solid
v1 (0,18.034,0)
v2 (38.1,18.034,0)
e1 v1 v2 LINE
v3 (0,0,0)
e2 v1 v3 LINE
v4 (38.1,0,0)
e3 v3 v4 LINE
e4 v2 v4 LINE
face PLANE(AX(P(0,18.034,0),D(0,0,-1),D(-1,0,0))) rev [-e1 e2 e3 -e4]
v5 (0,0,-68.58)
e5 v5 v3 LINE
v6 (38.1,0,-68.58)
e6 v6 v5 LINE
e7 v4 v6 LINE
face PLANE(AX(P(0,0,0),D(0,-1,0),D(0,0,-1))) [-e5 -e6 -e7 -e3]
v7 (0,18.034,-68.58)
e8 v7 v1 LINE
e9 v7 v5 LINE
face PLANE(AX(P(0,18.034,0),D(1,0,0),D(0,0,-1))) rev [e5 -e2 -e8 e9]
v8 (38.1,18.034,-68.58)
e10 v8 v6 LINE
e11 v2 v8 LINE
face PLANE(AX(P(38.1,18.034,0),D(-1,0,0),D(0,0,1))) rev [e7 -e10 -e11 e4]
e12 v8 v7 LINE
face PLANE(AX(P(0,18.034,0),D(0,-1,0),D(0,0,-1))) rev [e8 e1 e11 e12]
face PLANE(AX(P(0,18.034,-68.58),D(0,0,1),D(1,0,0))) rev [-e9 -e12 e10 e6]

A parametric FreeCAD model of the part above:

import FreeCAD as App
import Part
import Sketcher
from FreeCAD import Vector
Q = App.Units.Quantity


def add_polygon(sketch, points):
    """Adds a closed chain of lines whose ends are joined by coincident constraints."""
    first, n = sketch.GeometryCount, len(points)
    for a, b in zip(points, points[1:] + points[:1]):
        sketch.addGeometry(Part.LineSegment(App.Vector(*a, 0), App.Vector(*b, 0)), False)
    for i in range(n):
        sketch.addConstraint(Sketcher.Constraint("Coincident", first + i, 2, first + (i + 1) % n, 1))

doc = App.newDocument("Part")
body = doc.addObject("PartDesign::Body", "Body")

sketch1 = body.newObject("Sketcher::SketchObject", "Sketch")
sketch1.AttachmentSupport = (doc.getObject("XZ_Plane"), [""])
sketch1.MapMode = "FlatFace"
add_polygon(sketch1, [(0, -69), (0, 0), (38, 0), (38, -69)])
sketch1.addConstraint([
    Sketcher.Constraint("Vertical", 0),
    Sketcher.Constraint("Horizontal", 1),
    Sketcher.Constraint("Vertical", 2),
    Sketcher.Constraint("Horizontal", 3),
    Sketcher.Constraint("Coincident", 0, 2, -1, 1),
    Sketcher.Constraint("DistanceX", 1, 1, 1, 2, Q("1.5 in")),
    Sketcher.Constraint("DistanceY", 0, 1, 0, 2, Q("2.7 in")),
])
pad1 = body.newObject("PartDesign::Pad", "Pad")
pad1.Profile = sketch1
pad1.Length = Q("0.71 in")
pad1.Reversed = True

doc.recompute()
